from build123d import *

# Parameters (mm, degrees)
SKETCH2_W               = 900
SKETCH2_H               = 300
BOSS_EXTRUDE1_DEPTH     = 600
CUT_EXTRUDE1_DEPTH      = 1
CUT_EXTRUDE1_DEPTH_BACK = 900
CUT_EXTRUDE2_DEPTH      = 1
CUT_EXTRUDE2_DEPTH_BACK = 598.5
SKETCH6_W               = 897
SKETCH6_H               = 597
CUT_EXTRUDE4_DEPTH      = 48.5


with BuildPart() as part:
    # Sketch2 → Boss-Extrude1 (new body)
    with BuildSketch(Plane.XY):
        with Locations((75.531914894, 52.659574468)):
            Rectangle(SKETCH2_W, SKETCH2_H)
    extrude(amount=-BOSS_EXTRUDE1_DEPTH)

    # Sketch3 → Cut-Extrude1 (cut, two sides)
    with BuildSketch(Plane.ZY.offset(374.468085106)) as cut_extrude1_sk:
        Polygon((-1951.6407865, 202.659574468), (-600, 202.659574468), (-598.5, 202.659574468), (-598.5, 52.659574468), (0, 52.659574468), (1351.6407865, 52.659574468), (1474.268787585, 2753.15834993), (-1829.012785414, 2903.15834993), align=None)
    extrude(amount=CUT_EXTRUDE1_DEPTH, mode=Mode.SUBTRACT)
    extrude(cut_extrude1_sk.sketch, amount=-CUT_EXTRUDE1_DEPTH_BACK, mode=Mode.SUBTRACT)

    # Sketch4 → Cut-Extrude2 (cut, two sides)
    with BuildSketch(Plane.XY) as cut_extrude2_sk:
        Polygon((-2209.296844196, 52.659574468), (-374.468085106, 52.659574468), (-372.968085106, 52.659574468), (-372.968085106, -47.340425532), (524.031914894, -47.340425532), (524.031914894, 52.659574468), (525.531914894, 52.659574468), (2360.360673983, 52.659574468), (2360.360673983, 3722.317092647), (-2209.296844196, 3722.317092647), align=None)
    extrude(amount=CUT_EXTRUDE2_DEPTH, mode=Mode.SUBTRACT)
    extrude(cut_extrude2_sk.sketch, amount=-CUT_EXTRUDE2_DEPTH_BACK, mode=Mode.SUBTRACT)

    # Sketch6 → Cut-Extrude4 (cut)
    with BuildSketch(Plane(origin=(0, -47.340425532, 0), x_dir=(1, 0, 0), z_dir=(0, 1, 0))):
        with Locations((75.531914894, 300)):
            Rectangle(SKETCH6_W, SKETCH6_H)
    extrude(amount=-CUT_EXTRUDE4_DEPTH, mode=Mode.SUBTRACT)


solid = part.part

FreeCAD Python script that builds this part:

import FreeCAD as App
import Part
import Sketcher

doc = App.newDocument("Part")
body = doc.addObject("PartDesign::Body", "Body")

sketch1 = body.newObject("Sketcher::SketchObject", "Sketch")
sketch1.AttachmentSupport = (doc.getObject("XY_Plane"), [""])
sketch1.MapMode = "FlatFace"
sketch1.addGeometry(Part.LineSegment(App.Vector(-374.468085, 202.659574, 0), App.Vector(-374.468085, -97.340426, 0)), False)
sketch1.addGeometry(Part.LineSegment(App.Vector(-374.468085, -97.340426, 0), App.Vector(525.531915, -97.340426, 0)), False)
sketch1.addGeometry(Part.LineSegment(App.Vector(525.531915, -97.340426, 0), App.Vector(525.531915, 202.659574, 0)), False)
sketch1.addGeometry(Part.LineSegment(App.Vector(525.531915, 202.659574, 0), App.Vector(-374.468085, 202.659574, 0)), False)
sketch1.addConstraint(Sketcher.Constraint("Coincident", 0, 2, 1, 1))
sketch1.addConstraint(Sketcher.Constraint("Coincident", 1, 2, 2, 1))
sketch1.addConstraint(Sketcher.Constraint("Coincident", 2, 2, 3, 1))
sketch1.addConstraint(Sketcher.Constraint("Coincident", 3, 2, 0, 1))
sketch1.addConstraint(Sketcher.Constraint("Vertical", 0))
sketch1.addConstraint(Sketcher.Constraint("Horizontal", 1))
sketch1.addConstraint(Sketcher.Constraint("Vertical", 2))
sketch1.addConstraint(Sketcher.Constraint("Horizontal", 3))
sketch1.addConstraint(Sketcher.Constraint("DistanceX", 1, 1, 1, 2, 900.0))
sketch1.addConstraint(Sketcher.Constraint("DistanceY", 0, 2, 0, 1, 300.0))
sketch1.addConstraint(Sketcher.Constraint("DistanceX", 0, 2, -1, 1, 374.468085))
sketch1.addConstraint(Sketcher.Constraint("DistanceY", 0, 2, -1, 1, 97.340426))
pad1 = body.newObject("PartDesign::Pad", "Pad")
pad1.Profile = sketch1
pad1.Length = 600
pad1.Reversed = True

sketch2 = body.newObject("Sketcher::SketchObject", "Sketch001")
sketch2.AttachmentSupport = (doc.getObject("YZ_Plane"), [""])
sketch2.MapMode = "FlatFace"
sketch2.AttachmentOffset = App.Placement(App.Vector(0, 0, -374.468085), App.Rotation())
sketch2.addGeometry(Part.LineSegment(App.Vector(202.659574, -1951.640787, 0), App.Vector(202.659574, -598.5, 0)), False)
sketch2.addGeometry(Part.LineSegment(App.Vector(202.659574, -598.5, 0), App.Vector(52.659574, -598.5, 0)), False)
sketch2.addGeometry(Part.LineSegment(App.Vector(52.659574, -598.5, 0), App.Vector(52.659574, 1351.640787, 0)), False)
sketch2.addGeometry(Part.LineSegment(App.Vector(52.659574, 1351.640787, 0), App.Vector(2753.15835, 1474.268788, 0)), False)
sketch2.addGeometry(Part.LineSegment(App.Vector(2753.15835, 1474.268788, 0), App.Vector(2903.15835, -1829.012785, 0)), False)
sketch2.addGeometry(Part.LineSegment(App.Vector(2903.15835, -1829.012785, 0), App.Vector(202.659574, -1951.640787, 0)), False)
sketch2.addConstraint(Sketcher.Constraint("Coincident", 0, 2, 1, 1))
sketch2.addConstraint(Sketcher.Constraint("Coincident", 1, 2, 2, 1))
sketch2.addConstraint(Sketcher.Constraint("Coincident", 2, 2, 3, 1))
sketch2.addConstraint(Sketcher.Constraint("Coincident", 3, 2, 4, 1))
sketch2.addConstraint(Sketcher.Constraint("Coincident", 4, 2, 5, 1))
sketch2.addConstraint(Sketcher.Constraint("Coincident", 5, 2, 0, 1))
sketch2.addConstraint(Sketcher.Constraint("Vertical", 0))
sketch2.addConstraint(Sketcher.Constraint("Horizontal", 1))
sketch2.addConstraint(Sketcher.Constraint("Vertical", 2))
sketch2.addConstraint(Sketcher.Constraint("DistanceX", 1, 2, 1, 1, 150.0))
sketch2.addConstraint(Sketcher.Constraint("DistanceX", 3, 2, 4, 2, 150.0))
sketch2.addConstraint(Sketcher.Constraint("DistanceY", 0, 2, -1, 1, 598.5))
sketch2.addConstraint(Sketcher.Constraint("DistanceY", 2, 2, 3, 2, 122.628001))
sketch2.addConstraint(Sketcher.Constraint("DistanceY", 5, 2, 4, 2, 122.628001))
sketch2.addConstraint(Sketcher.Constraint("DistanceY", 0, 1, 0, 2, 1353.140787))
sketch2.addConstraint(Sketcher.Constraint("DistanceY", 2, 1, 2, 2, 1950.140787))
sketch2.addConstraint(Sketcher.Constraint("DistanceX", -1, 1, 3, 2, 2753.15835))
sketch2.addConstraint(Sketcher.Constraint("Distance", 3, 2703.281573))
pocket1 = body.newObject("PartDesign::Pocket", "Pocket")
pocket1.Profile = sketch2
pocket1.Type = "ThroughAll"
pocket1.Midplane = True

sketch3 = body.newObject("Sketcher::SketchObject", "Sketch002")
sketch3.AttachmentSupport = (doc.getObject("XY_Plane"), [""])
sketch3.MapMode = "FlatFace"
sketch3.addGeometry(Part.LineSegment(App.Vector(-2209.296844, 52.659574, 0), App.Vector(-372.968085, 52.659574, 0)), False)
sketch3.addGeometry(Part.LineSegment(App.Vector(-372.968085, 52.659574, 0), App.Vector(-372.968085, -47.340426, 0)), False)
sketch3.addGeometry(Part.LineSegment(App.Vector(-372.968085, -47.340426, 0), App.Vector(524.031915, -47.340426, 0)), False)
sketch3.addGeometry(Part.LineSegment(App.Vector(524.031915, -47.340426, 0), App.Vector(524.031915, 52.659574, 0)), False)
sketch3.addGeometry(Part.LineSegment(App.Vector(524.031915, 52.659574, 0), App.Vector(2360.360674, 52.659574, 0)), False)
sketch3.addGeometry(Part.LineSegment(App.Vector(2360.360674, 52.659574, 0), App.Vector(2360.360674, 3722.317093, 0)), False)
sketch3.addGeometry(Part.LineSegment(App.Vector(2360.360674, 3722.317093, 0), App.Vector(-2209.296844, 3722.317093, 0)), False)
sketch3.addGeometry(Part.LineSegment(App.Vector(-2209.296844, 3722.317093, 0), App.Vector(-2209.296844, 52.659574, 0)), False)
sketch3.addConstraint(Sketcher.Constraint("Coincident", 0, 2, 1, 1))
sketch3.addConstraint(Sketcher.Constraint("Coincident", 1, 2, 2, 1))
sketch3.addConstraint(Sketcher.Constraint("Coincident", 2, 2, 3, 1))
sketch3.addConstraint(Sketcher.Constraint("Coincident", 3, 2, 4, 1))
sketch3.addConstraint(Sketcher.Constraint("Coincident", 4, 2, 5, 1))
sketch3.addConstraint(Sketcher.Constraint("Coincident", 5, 2, 6, 1))
sketch3.addConstraint(Sketcher.Constraint("Coincident", 6, 2, 7, 1))
sketch3.addConstraint(Sketcher.Constraint("Coincident", 7, 2, 0, 1))
sketch3.addConstraint(Sketcher.Constraint("Horizontal", 0))
sketch3.addConstraint(Sketcher.Constraint("Vertical", 1))
sketch3.addConstraint(Sketcher.Constraint("Horizontal", 2))
sketch3.addConstraint(Sketcher.Constraint("Vertical", 3))
sketch3.addConstraint(Sketcher.Constraint("Horizontal", 4))
sketch3.addConstraint(Sketcher.Constraint("Vertical", 5))
sketch3.addConstraint(Sketcher.Constraint("Horizontal", 6))
sketch3.addConstraint(Sketcher.Constraint("Vertical", 7))
sketch3.addConstraint(Sketcher.Constraint("Horizontal", 0, 2, 3, 2))
sketch3.addConstraint(Sketcher.Constraint("Equal", 0, 4))
sketch3.addConstraint(Sketcher.Constraint("DistanceX", 2, 1, 2, 2, 897.0))
sketch3.addConstraint(Sketcher.Constraint("DistanceY", 1, 2, 1, 1, 100.0))
sketch3.addConstraint(Sketcher.Constraint("DistanceX", 0, 1, 0, 2, 1836.328759))
sketch3.addConstraint(Sketcher.Constraint("DistanceY", 5, 1, 5, 2, 3669.657518))
sketch3.addConstraint(Sketcher.Constraint("DistanceX", 0, 2, -1, 1, 372.968085))
sketch3.addConstraint(Sketcher.Constraint("DistanceY", -1, 1, 0, 2, 52.659574))
pocket2 = body.newObject("PartDesign::Pocket", "Pocket001")
pocket2.Profile = sketch3
pocket2.Type = "TwoLengths"
pocket2.Length = 1
pocket2.Length2 = 598.5
pocket2.Reversed = True

sketch4 = body.newObject("Sketcher::SketchObject", "Sketch003")
sketch4.AttachmentSupport = (doc.getObject("XZ_Plane"), [""])
sketch4.MapMode = "FlatFace"
sketch4.AttachmentOffset = App.Placement(App.Vector(0, 0, 47.340426), App.Rotation())
sketch4.addGeometry(Part.LineSegment(App.Vector(-372.968085, -598.5, 0), App.Vector(-372.968085, -1.5, 0)), False)
sketch4.addGeometry(Part.LineSegment(App.Vector(-372.968085, -1.5, 0), App.Vector(524.031915, -1.5, 0)), False)
sketch4.addGeometry(Part.LineSegment(App.Vector(524.031915, -1.5, 0), App.Vector(524.031915, -598.5, 0)), False)
sketch4.addGeometry(Part.LineSegment(App.Vector(524.031915, -598.5, 0), App.Vector(-372.968085, -598.5, 0)), False)
sketch4.addConstraint(Sketcher.Constraint("Coincident", 0, 2, 1, 1))
sketch4.addConstraint(Sketcher.Constraint("Coincident", 1, 2, 2, 1))
sketch4.addConstraint(Sketcher.Constraint("Coincident", 2, 2, 3, 1))
sketch4.addConstraint(Sketcher.Constraint("Coincident", 3, 2, 0, 1))
sketch4.addConstraint(Sketcher.Constraint("Vertical", 0))
sketch4.addConstraint(Sketcher.Constraint("Horizontal", 1))
sketch4.addConstraint(Sketcher.Constraint("Vertical", 2))
sketch4.addConstraint(Sketcher.Constraint("Horizontal", 3))
sketch4.addConstraint(Sketcher.Constraint("DistanceX", 1, 1, 1, 2, 897.0))
sketch4.addConstraint(Sketcher.Constraint("DistanceY", 0, 1, 0, 2, 597.0))
sketch4.addConstraint(Sketcher.Constraint("DistanceY", 0, 2, -1, 1, 1.5))
sketch4.addConstraint(Sketcher.Constraint("DistanceX", 0, 2, -1, 1, 372.968085))
pocket3 = body.newObject("PartDesign::Pocket", "Pocket002")
pocket3.Profile = sketch4
pocket3.Length = 48.5
pocket3.Reversed = True

doc.recompute()
